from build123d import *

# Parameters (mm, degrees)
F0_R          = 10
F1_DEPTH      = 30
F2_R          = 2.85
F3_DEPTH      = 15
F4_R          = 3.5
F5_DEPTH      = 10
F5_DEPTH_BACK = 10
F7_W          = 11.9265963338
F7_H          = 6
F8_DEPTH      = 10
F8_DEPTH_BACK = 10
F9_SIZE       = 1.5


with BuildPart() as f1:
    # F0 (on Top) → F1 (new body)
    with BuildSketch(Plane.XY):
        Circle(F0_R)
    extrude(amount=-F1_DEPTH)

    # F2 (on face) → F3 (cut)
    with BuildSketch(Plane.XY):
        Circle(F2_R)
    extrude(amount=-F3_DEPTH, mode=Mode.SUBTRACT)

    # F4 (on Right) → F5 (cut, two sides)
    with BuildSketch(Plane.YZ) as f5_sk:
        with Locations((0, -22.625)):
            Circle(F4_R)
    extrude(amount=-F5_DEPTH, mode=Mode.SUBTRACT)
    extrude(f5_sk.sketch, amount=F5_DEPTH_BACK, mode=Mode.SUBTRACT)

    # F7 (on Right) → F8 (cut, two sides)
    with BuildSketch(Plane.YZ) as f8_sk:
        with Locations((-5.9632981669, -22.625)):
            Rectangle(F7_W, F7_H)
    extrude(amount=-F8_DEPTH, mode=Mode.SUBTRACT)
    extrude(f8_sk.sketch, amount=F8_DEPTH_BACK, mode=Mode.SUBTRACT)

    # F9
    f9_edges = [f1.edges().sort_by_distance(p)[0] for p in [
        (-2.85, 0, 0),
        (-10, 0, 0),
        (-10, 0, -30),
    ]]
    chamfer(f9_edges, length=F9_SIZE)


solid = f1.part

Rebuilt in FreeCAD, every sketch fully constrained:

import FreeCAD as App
import Part
import Sketcher
from FreeCAD import Vector


def edges_at(feature, points):
    """Names of the edges that pass closest to the given points."""
    edges = feature.Shape.Edges
    near = lambda p: min(range(len(edges)), key=lambda i: edges[i].distToShape(Part.Vertex(*p))[0])
    return sorted({f"Edge{near(p) + 1}" for p in points})

doc = App.newDocument("Part")
body = doc.addObject("PartDesign::Body", "Body")

sketch1 = doc.addObject("Sketcher::SketchObject", "Sketch")
body.addObject(sketch1)
sketch1.AttachmentSupport = (doc.XY_Plane, [""])
sketch1.MapMode = "FlatFace"
sketch1.addGeometry(Part.Circle(Vector(0, 0, 0), Vector(0, 0, 1), 10), False)
sketch1.addConstraint([
    Sketcher.Constraint("Coincident", 0, 3, -1, 1),
    Sketcher.Constraint("Diameter", 0, 20.0),
])
pad1 = doc.addObject("PartDesign::Pad", "Pad")
body.addObject(pad1)
pad1.Profile = sketch1
pad1.Length = 30
pad1.Reversed = True

sketch2 = doc.addObject("Sketcher::SketchObject", "Sketch001")
body.addObject(sketch2)
sketch2.AttachmentSupport = (doc.XY_Plane, [""])
sketch2.MapMode = "FlatFace"
sketch2.addGeometry(Part.Circle(Vector(0, 0, 0), Vector(0, 0, 1), 2.9), False)
sketch2.addConstraint([
    Sketcher.Constraint("Coincident", 0, 3, -1, 1),
    Sketcher.Constraint("Diameter", 0, 5.7),
])
pocket1 = doc.addObject("PartDesign::Pocket", "Pocket")
body.addObject(pocket1)
pocket1.Profile = sketch2
pocket1.Length = 15

sketch3 = doc.addObject("Sketcher::SketchObject", "Sketch002")
body.addObject(sketch3)
sketch3.AttachmentSupport = (doc.YZ_Plane, [""])
sketch3.MapMode = "FlatFace"
sketch3.addGeometry(Part.Circle(Vector(0, -22.6, 0), Vector(0, 0, 1), 3.5), False)
sketch3.addConstraint([
    Sketcher.Constraint("PointOnObject", 0, 3, -2),
    Sketcher.Constraint("Diameter", 0, 7.0),
    Sketcher.Constraint("DistanceY", 0, 3, -1, 1, 22.625),
])
pocket2 = doc.addObject("PartDesign::Pocket", "Pocket001")
body.addObject(pocket2)
pocket2.Profile = sketch3
pocket2.Type = "ThroughAll"
pocket2.Midplane = True

sketch4 = doc.addObject("Sketcher::SketchObject", "Sketch003")
body.addObject(sketch4)
sketch4.AttachmentSupport = (doc.YZ_Plane, [""])
sketch4.MapMode = "FlatFace"
sketch4.addGeometry([
    Part.LineSegment(Vector(-12, -20, 0), Vector(-12, -26, 0)),
    Part.LineSegment(Vector(-12, -26, 0), Vector(0, -26, 0)),
    Part.LineSegment(Vector(0, -26, 0), Vector(0, -20, 0)),
    Part.LineSegment(Vector(0, -20, 0), Vector(-12, -20, 0)),
], False)
sketch4.addConstraint([
    Sketcher.Constraint("Coincident", 0, 2, 1, 1),
    Sketcher.Constraint("Coincident", 1, 2, 2, 1),
    Sketcher.Constraint("Coincident", 2, 2, 3, 1),
    Sketcher.Constraint("Coincident", 3, 2, 0, 1),
    Sketcher.Constraint("Vertical", 0),
    Sketcher.Constraint("Horizontal", 1),
    Sketcher.Constraint("Vertical", 2),
    Sketcher.Constraint("Horizontal", 3),
    Sketcher.Constraint("PointOnObject", 1, 2, -2),
    Sketcher.Constraint("DistanceY", 0, 2, 0, 1, 6.0),
    Sketcher.Constraint("DistanceY", 0, 2, -1, 1, 25.625),
    Sketcher.Constraint("DistanceX", 1, 1, 1, 2, 11.926596),
])
pocket3 = doc.addObject("PartDesign::Pocket", "Pocket002")
body.addObject(pocket3)
pocket3.Profile = sketch4
pocket3.Type = "ThroughAll"
pocket3.Midplane = True
doc.recompute()

chamfer = doc.addObject("PartDesign::Chamfer", "Chamfer")
body.addObject(chamfer)
chamfer.Base = (pocket3, edges_at(pocket3, [(-2.85, 0, 0), (-10, 0, 0), (-10, 0, -30)]))
chamfer.Size = 1.5

doc.recompute()
